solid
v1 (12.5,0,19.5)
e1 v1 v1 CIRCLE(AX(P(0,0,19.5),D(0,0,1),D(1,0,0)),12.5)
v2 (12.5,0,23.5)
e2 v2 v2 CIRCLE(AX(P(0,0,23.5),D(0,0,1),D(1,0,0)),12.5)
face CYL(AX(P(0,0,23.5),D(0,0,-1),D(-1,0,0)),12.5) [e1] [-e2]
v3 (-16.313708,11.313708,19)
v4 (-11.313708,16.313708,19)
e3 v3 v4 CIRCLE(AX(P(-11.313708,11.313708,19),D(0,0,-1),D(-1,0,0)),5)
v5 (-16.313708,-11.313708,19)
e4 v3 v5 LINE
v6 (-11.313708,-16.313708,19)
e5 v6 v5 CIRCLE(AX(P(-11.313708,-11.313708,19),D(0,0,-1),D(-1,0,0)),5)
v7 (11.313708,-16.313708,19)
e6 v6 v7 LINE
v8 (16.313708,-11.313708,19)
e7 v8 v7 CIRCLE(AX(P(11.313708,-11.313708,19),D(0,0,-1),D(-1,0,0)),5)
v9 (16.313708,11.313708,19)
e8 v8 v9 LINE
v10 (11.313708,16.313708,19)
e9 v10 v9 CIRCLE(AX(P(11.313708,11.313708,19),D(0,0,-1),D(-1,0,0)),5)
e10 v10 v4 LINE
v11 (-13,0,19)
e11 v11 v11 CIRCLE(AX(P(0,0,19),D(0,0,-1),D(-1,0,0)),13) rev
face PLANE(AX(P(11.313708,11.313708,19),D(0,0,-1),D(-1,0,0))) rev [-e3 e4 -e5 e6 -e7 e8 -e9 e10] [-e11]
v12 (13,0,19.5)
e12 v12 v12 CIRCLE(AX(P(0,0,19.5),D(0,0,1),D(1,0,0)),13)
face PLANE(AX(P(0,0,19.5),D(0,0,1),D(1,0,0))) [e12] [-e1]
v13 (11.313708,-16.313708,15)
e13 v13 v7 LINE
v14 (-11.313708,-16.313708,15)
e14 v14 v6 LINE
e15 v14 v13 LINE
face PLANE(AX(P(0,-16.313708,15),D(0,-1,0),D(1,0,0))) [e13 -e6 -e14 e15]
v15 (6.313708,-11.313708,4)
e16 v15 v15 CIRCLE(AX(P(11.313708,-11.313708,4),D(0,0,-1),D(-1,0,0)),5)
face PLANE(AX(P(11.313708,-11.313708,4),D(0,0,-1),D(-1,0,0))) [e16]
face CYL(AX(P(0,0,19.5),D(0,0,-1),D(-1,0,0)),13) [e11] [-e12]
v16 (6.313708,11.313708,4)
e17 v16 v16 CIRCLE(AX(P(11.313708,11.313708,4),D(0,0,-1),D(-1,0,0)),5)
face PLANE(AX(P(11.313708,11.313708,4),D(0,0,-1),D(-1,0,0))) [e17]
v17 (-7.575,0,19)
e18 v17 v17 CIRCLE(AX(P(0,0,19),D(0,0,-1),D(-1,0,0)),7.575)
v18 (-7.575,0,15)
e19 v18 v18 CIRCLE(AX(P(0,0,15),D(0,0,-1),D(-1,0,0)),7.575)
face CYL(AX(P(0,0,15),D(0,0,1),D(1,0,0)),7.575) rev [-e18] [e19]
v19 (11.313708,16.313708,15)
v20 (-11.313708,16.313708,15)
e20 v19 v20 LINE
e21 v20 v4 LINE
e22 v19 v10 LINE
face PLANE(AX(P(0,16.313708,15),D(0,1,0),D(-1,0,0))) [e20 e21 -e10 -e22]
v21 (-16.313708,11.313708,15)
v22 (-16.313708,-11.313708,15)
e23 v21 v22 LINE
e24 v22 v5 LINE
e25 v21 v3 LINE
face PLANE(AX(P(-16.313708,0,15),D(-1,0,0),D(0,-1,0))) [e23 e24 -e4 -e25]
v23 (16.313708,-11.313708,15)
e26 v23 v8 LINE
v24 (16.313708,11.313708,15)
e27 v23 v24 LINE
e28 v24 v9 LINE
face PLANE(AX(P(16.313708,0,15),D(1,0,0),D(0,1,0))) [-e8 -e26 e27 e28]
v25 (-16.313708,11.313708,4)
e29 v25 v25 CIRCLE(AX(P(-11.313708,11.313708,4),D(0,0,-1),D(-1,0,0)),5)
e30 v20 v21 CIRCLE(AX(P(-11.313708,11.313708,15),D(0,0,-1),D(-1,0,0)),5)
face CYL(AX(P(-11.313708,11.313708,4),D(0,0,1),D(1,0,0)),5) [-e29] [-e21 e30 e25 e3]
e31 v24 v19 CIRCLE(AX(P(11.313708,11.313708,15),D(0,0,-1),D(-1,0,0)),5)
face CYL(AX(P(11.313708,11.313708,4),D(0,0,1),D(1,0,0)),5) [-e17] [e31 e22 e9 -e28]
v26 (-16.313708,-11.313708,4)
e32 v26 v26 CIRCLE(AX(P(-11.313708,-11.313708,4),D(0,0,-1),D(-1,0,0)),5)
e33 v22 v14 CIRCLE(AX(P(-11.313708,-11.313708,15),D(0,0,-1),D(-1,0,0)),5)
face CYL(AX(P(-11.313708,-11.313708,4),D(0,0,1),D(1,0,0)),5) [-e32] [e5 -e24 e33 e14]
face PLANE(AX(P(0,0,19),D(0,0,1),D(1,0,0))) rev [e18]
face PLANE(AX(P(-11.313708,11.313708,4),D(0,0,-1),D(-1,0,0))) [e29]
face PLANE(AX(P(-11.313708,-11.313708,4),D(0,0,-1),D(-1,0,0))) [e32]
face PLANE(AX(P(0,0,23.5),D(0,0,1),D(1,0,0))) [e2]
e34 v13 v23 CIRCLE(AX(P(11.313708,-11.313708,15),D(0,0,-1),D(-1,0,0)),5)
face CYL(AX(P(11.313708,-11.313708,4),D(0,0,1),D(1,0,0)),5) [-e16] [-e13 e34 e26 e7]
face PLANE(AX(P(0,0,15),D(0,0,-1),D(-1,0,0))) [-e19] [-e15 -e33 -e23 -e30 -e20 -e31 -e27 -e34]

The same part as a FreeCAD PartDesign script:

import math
import FreeCAD as App
import Part
import Sketcher
Q = App.Units.Quantity

doc = App.newDocument("Part")
body = doc.addObject("PartDesign::Body", "Body")

sketch1 = body.newObject("Sketcher::SketchObject", "Sketch")
sketch1.AttachmentSupport = (doc.getObject("XY_Plane"), [""])
sketch1.MapMode = "FlatFace"
sketch1.AttachmentOffset = App.Placement(App.Vector(0, 0, 19), App.Rotation())
sketch1.addGeometry(Part.Circle(App.Vector(11, 11, 0), App.Vector(0, 0, 1), 5), False)
sketch1.addConstraint(Sketcher.Constraint("Diameter", 0, Q("10 mm")))
sketch1.addConstraint(Sketcher.Constraint("DistanceX", -1, 1, 0, 3, Q("11.313708 mm")))
sketch1.addConstraint(Sketcher.Constraint("DistanceY", -1, 1, 0, 3, Q("11.313708 mm")))
pad1 = body.newObject("PartDesign::Pad", "Pad")
pad1.Profile = sketch1
pad1.Length = 15
pad1.Reversed = True
body2 = doc.addObject("PartDesign::Body", "Body001")

sketch2 = body2.newObject("Sketcher::SketchObject", "Sketch001")
sketch2.AttachmentSupport = (doc.getObject("XY_Plane001"), [""])
sketch2.MapMode = "FlatFace"
sketch2.AttachmentOffset = App.Placement(App.Vector(0, 0, 19), App.Rotation())
sketch2.addGeometry(Part.Circle(App.Vector(-11, 11, 0), App.Vector(0, 0, 1), 5), False)
sketch2.addConstraint(Sketcher.Constraint("Diameter", 0, Q("10 mm")))
sketch2.addConstraint(Sketcher.Constraint("DistanceX", 0, 3, -1, 1, Q("11.313708 mm")))
sketch2.addConstraint(Sketcher.Constraint("DistanceY", -1, 1, 0, 3, Q("11.313708 mm")))
pad2 = body2.newObject("PartDesign::Pad", "Pad001")
pad2.Profile = sketch2
pad2.Length = 15
pad2.Reversed = True
body3 = doc.addObject("PartDesign::Body", "Body002")

sketch3 = body3.newObject("Sketcher::SketchObject", "Sketch002")
sketch3.AttachmentSupport = (doc.getObject("XY_Plane002"), [""])
sketch3.MapMode = "FlatFace"
sketch3.AttachmentOffset = App.Placement(App.Vector(0, 0, 19), App.Rotation())
sketch3.addGeometry(Part.Circle(App.Vector(-11, -11, 0), App.Vector(0, 0, 1), 5), False)
sketch3.addConstraint(Sketcher.Constraint("Diameter", 0, Q("10 mm")))
sketch3.addConstraint(Sketcher.Constraint("DistanceX", 0, 3, -1, 1, Q("11.313708 mm")))
sketch3.addConstraint(Sketcher.Constraint("DistanceY", 0, 3, -1, 1, Q("11.313708 mm")))
pad3 = body3.newObject("PartDesign::Pad", "Pad002")
pad3.Profile = sketch3
pad3.Length = 15
pad3.Reversed = True
body4 = doc.addObject("PartDesign::Body", "Body003")

sketch4 = body4.newObject("Sketcher::SketchObject", "Sketch003")
sketch4.AttachmentSupport = (doc.getObject("XY_Plane003"), [""])
sketch4.MapMode = "FlatFace"
sketch4.AttachmentOffset = App.Placement(App.Vector(0, 0, 19), App.Rotation())
sketch4.addGeometry(Part.Circle(App.Vector(11, -11, 0), App.Vector(0, 0, 1), 5), False)
sketch4.addConstraint(Sketcher.Constraint("Diameter", 0, Q("10 mm")))
sketch4.addConstraint(Sketcher.Constraint("DistanceX", -1, 1, 0, 3, Q("11.313708 mm")))
sketch4.addConstraint(Sketcher.Constraint("DistanceY", 0, 3, -1, 1, Q("11.313708 mm")))
pad4 = body4.newObject("PartDesign::Pad", "Pad003")
pad4.Profile = sketch4
pad4.Length = 15
pad4.Reversed = True
body.AllowCompound = True
doc.recompute()

boolean = body.newObject("PartDesign::Boolean", "Boolean")
boolean.Type = "Fuse"
boolean.addObjects([body2])
doc.recompute()

boolean2 = body.newObject("PartDesign::Boolean", "Boolean001")
boolean2.Type = "Fuse"
boolean2.addObjects([body3])
doc.recompute()

boolean3 = body.newObject("PartDesign::Boolean", "Boolean002")
boolean3.Type = "Fuse"
boolean3.addObjects([body4])

sketch5 = body.newObject("Sketcher::SketchObject", "Sketch004")
sketch5.AttachmentSupport = (doc.getObject("XY_Plane"), [""])
sketch5.MapMode = "FlatFace"
sketch5.AttachmentOffset = App.Placement(App.Vector(0, 0, 19), App.Rotation())
sketch5.addGeometry(Part.LineSegment(App.Vector(-16, -11, 0), App.Vector(-16, 11, 0)), False)
sketch5.addGeometry(Part.ArcOfCircle(Part.Circle(App.Vector(-11, 11, 0), App.Vector(0, 0, 1), 5), math.radians(180), math.radians(450)), False)
sketch5.addGeometry(Part.LineSegment(App.Vector(-11, 16, 0), App.Vector(11, 16, 0)), False)
sketch5.addGeometry(Part.ArcOfCircle(Part.Circle(App.Vector(11, 11, 0), App.Vector(0, 0, 1), 5), math.radians(90), math.radians(180)), False)
sketch5.addGeometry(Part.ArcOfCircle(Part.Circle(App.Vector(11, 11, 0), App.Vector(0, 0, 1), 5), math.radians(180), math.radians(360)), False)
sketch5.addGeometry(Part.LineSegment(App.Vector(16, 11, 0), App.Vector(16, -11, 0)), False)
sketch5.addGeometry(Part.ArcOfCircle(Part.Circle(App.Vector(11, -11, 0), App.Vector(0, 0, 1), 5), math.radians(0), math.radians(180)), False)
sketch5.addGeometry(Part.ArcOfCircle(Part.Circle(App.Vector(11, -11, 0), App.Vector(0, 0, 1), 5), math.radians(180), math.radians(270)), False)
sketch5.addGeometry(Part.LineSegment(App.Vector(11, -16, 0), App.Vector(-11, -16, 0)), False)
sketch5.addGeometry(Part.ArcOfCircle(Part.Circle(App.Vector(-11, -11, 0), App.Vector(0, 0, 1), 5), math.radians(-90), math.radians(180)), False)
sketch5.addGeometry(Part.Circle(App.Vector(0, 0, 0), App.Vector(0, 0, 1), 8), False)
sketch5.addConstraint(Sketcher.Constraint("Tangent", 0, 2, 1, 1))
sketch5.addConstraint(Sketcher.Constraint("Tangent", 1, 2, 2, 1))
sketch5.addConstraint(Sketcher.Constraint("Tangent", 2, 2, 3, 1))
sketch5.addConstraint(Sketcher.Constraint("Tangent", 3, 2, 4, 1))
sketch5.addConstraint(Sketcher.Constraint("Tangent", 4, 2, 5, 1))
sketch5.addConstraint(Sketcher.Constraint("Tangent", 5, 2, 6, 1))
sketch5.addConstraint(Sketcher.Constraint("Tangent", 6, 2, 7, 1))
sketch5.addConstraint(Sketcher.Constraint("Tangent", 7, 2, 8, 1))
sketch5.addConstraint(Sketcher.Constraint("Tangent", 8, 2, 9, 1))
sketch5.addConstraint(Sketcher.Constraint("Tangent", 9, 2, 0, 1))
sketch5.addConstraint(Sketcher.Constraint("Vertical", 0))
sketch5.addConstraint(Sketcher.Constraint("Horizontal", 2))
sketch5.addConstraint(Sketcher.Constraint("Vertical", 5))
sketch5.addConstraint(Sketcher.Constraint("Horizontal", 8))
sketch5.addConstraint(Sketcher.Constraint("Coincident", 10, 3, -1, 1))
sketch5.addConstraint(Sketcher.Constraint("Equal", 1, 3))
sketch5.addConstraint(Sketcher.Constraint("Equal", 3, 4))
sketch5.addConstraint(Sketcher.Constraint("Equal", 4, 6))
sketch5.addConstraint(Sketcher.Constraint("Equal", 6, 7))
sketch5.addConstraint(Sketcher.Constraint("Equal", 7, 9))
sketch5.addConstraint(Sketcher.Constraint("Symmetric", 1, 3, 6, 3, -1, 1))
sketch5.addConstraint(Sketcher.Constraint("Horizontal", 0, 2, 3, 2))
sketch5.addConstraint(Sketcher.Constraint("Horizontal", 5, 2, 6, 2))
sketch5.addConstraint(Sketcher.Constraint("Equal", 8, 0))
sketch5.addConstraint(Sketcher.Constraint("Radius", 1, Q("5 mm")))
sketch5.addConstraint(Sketcher.Constraint("Diameter", 10, Q("15.15 mm")))
sketch5.addConstraint(Sketcher.Constraint("DistanceX", 2, 1, 2, 2, Q("22.627417 mm")))
pad5 = body.newObject("PartDesign::Pad", "Pad004")
pad5.Profile = sketch5
pad5.Length = 4
pad5.Reversed = True

sketch6 = body.newObject("Sketcher::SketchObject", "Sketch005")
sketch6.AttachmentSupport = (doc.getObject("XY_Plane"), [""])
sketch6.MapMode = "FlatFace"
sketch6.AttachmentOffset = App.Placement(App.Vector(0, 0, 19), App.Rotation())
sketch6.addGeometry(Part.Circle(App.Vector(0, 0, 0), App.Vector(0, 0, 1), 12), False)
sketch6.addConstraint(Sketcher.Constraint("Coincident", 0, 3, -1, 1))
sketch6.addConstraint(Sketcher.Constraint("Diameter", 0, Q("25 mm")))
pad6 = body.newObject("PartDesign::Pad", "Pad005")
pad6.Profile = sketch6
pad6.Length = 4.5

sketch7 = body.newObject("Sketcher::SketchObject", "Sketch006")
sketch7.AttachmentSupport = (doc.getObject("XY_Plane"), [""])
sketch7.MapMode = "FlatFace"
sketch7.AttachmentOffset = App.Placement(App.Vector(0, 0, 19), App.Rotation())
sketch7.addGeometry(Part.Circle(App.Vector(0, 0, 0), App.Vector(0, 0, 1), 13), False)
sketch7.addGeometry(Part.Circle(App.Vector(0, 0, 0), App.Vector(0, 0, 1), 12), False)
sketch7.addConstraint(Sketcher.Constraint("Coincident", 0, 3, -1, 1))
sketch7.addConstraint(Sketcher.Constraint("Coincident", 1, 3, -1, 1))
sketch7.addConstraint(Sketcher.Constraint("Diameter", 0, Q("26 mm")))
sketch7.addConstraint(Sketcher.Constraint("Diameter", 1, Q("25 mm")))
pad7 = body.newObject("PartDesign::Pad", "Pad006")
pad7.Profile = sketch7
pad7.Length = 0.5

doc.recompute()
